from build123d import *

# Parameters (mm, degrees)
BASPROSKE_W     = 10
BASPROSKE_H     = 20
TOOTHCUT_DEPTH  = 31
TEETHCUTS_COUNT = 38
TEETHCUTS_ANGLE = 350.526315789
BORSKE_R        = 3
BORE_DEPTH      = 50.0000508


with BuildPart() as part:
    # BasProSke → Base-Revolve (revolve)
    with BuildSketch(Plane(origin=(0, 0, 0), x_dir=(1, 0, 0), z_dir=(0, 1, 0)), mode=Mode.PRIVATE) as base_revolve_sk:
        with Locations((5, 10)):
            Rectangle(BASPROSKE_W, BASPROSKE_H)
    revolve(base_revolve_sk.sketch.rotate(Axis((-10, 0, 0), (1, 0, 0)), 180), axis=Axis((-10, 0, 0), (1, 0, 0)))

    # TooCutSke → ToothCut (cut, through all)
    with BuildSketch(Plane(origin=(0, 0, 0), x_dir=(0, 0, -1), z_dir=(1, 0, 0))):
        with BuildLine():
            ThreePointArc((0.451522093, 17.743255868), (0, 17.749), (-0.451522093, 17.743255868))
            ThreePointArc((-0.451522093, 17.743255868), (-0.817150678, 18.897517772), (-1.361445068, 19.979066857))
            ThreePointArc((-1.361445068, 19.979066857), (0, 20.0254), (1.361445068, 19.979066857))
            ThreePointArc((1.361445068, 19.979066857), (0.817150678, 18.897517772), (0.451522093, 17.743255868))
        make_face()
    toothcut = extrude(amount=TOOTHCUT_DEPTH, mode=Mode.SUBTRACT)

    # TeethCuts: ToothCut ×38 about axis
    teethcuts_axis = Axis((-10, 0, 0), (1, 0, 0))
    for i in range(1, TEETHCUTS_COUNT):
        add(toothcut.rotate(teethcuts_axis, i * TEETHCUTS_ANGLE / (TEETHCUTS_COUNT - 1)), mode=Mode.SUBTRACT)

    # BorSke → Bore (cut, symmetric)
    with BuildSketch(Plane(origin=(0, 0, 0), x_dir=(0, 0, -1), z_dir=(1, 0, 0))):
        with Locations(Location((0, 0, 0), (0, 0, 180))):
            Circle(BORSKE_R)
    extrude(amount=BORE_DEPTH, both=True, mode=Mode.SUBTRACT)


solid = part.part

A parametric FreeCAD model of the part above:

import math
import FreeCAD as App
import Part
import Sketcher
from FreeCAD import Vector

doc = App.newDocument("Part")
body = doc.addObject("PartDesign::Body", "Body")

sketch1 = doc.addObject("Sketcher::SketchObject", "Sketch")
body.addObject(sketch1)
sketch1.AttachmentSupport = (doc.XZ_Plane, [""])
sketch1.MapMode = "FlatFace"
sketch1.addGeometry([
    Part.LineSegment(Vector(0, -20, 0), Vector(0, 0, 0)),
    Part.LineSegment(Vector(0, 0, 0), Vector(10, 0, 0)),
    Part.LineSegment(Vector(10, 0, 0), Vector(10, -20, 0)),
    Part.LineSegment(Vector(10, -20, 0), Vector(0, -20, 0)),
], False)
sketch1.addConstraint([
    Sketcher.Constraint("Coincident", 0, 2, 1, 1),
    Sketcher.Constraint("Coincident", 1, 2, 2, 1),
    Sketcher.Constraint("Coincident", 2, 2, 3, 1),
    Sketcher.Constraint("Coincident", 3, 2, 0, 1),
    Sketcher.Constraint("Vertical", 0),
    Sketcher.Constraint("Horizontal", 1),
    Sketcher.Constraint("Vertical", 2),
    Sketcher.Constraint("Horizontal", 3),
    Sketcher.Constraint("Coincident", 0, 2, -1, 1),
    Sketcher.Constraint("DistanceX", 1, 1, 1, 2, 10.0),
    Sketcher.Constraint("DistanceY", 0, 1, 0, 2, 20.0),
])
revolution = doc.addObject("PartDesign::Revolution", "Revolution")
body.addObject(revolution)
revolution.Profile = sketch1
revolution.ReferenceAxis = (sketch1, ["H_Axis"])
revolution.Angle = 360

sketch2 = doc.addObject("Sketcher::SketchObject", "Sketch001")
body.addObject(sketch2)
sketch2.AttachmentSupport = (doc.YZ_Plane, [""])
sketch2.MapMode = "FlatFace"
sketch2.addGeometry([
    Part.ArcOfCircle(Part.Circle(Vector(0, 0, 0), Vector(0, 0, 1), 17.7), math.radians(-1.46), math.radians(1.46)),
    Part.ArcOfCircle(Part.Circle(Vector(16, -7.9, 0), Vector(0, 0, 1), 7.6), math.radians(58.72), math.radians(76.99)),
    Part.ArcOfCircle(Part.Circle(Vector(0, 0, 0), Vector(0, 0, 1), 20), math.radians(-3.9), math.radians(3.9)),
    Part.ArcOfCircle(Part.Circle(Vector(16, 7.9, 0), Vector(0, 0, 1), 7.6), math.radians(-76.99), math.radians(-58.72)),
], False)
sketch2.addConstraint([
    Sketcher.Constraint("Coincident", 0, 1, 1, 2),
    Sketcher.Constraint("Coincident", 1, 1, 2, 1),
    Sketcher.Constraint("Coincident", 2, 2, 3, 2),
    Sketcher.Constraint("Coincident", 3, 1, 0, 2),
    Sketcher.Constraint("Coincident", 0, 3, -1, 1),
    Sketcher.Constraint("Coincident", 2, 3, -1, 1),
    Sketcher.Constraint("Equal", 1, 3),
    Sketcher.Constraint("Symmetric", 1, 3, 3, 3, -1),
    Sketcher.Constraint("Radius", 1, 7.6),
    Sketcher.Constraint("Radius", 0, 17.749),
    Sketcher.Constraint("Radius", 2, 20.0254),
    Sketcher.Constraint("DistanceX", -1, 1, 1, 3, 16.032662),
    Sketcher.Constraint("DistanceY", 1, 3, -1, 1, 7.856511),
])
pocket1 = doc.addObject("PartDesign::Pocket", "Pocket")
body.addObject(pocket1)
pocket1.Profile = sketch2
pocket1.Type = "ThroughAll"
pocket1.Reversed = True
doc.recompute()

polarpattern = doc.addObject("PartDesign::PolarPattern", "PolarPattern")
body.addObject(polarpattern)
polarpattern.Originals = [pocket1]
polarpattern.Axis = (doc.X_Axis, [""])
polarpattern.Angle = 360
polarpattern.Occurrences = 38
body.Tip = polarpattern

sketch3 = doc.addObject("Sketcher::SketchObject", "Sketch002")
body.addObject(sketch3)
sketch3.AttachmentSupport = (doc.YZ_Plane, [""])
sketch3.MapMode = "FlatFace"
sketch3.addGeometry(Part.Circle(Vector(0, 0, 0), Vector(0, 0, 1), 3), False)
sketch3.addConstraint([
    Sketcher.Constraint("Coincident", 0, 3, -1, 1),
    Sketcher.Constraint("Diameter", 0, 6.0),
])
pocket2 = doc.addObject("PartDesign::Pocket", "Pocket001")
body.addObject(pocket2)
pocket2.Profile = sketch3
pocket2.Length = 100.000102
pocket2.Midplane = True

doc.recompute()
